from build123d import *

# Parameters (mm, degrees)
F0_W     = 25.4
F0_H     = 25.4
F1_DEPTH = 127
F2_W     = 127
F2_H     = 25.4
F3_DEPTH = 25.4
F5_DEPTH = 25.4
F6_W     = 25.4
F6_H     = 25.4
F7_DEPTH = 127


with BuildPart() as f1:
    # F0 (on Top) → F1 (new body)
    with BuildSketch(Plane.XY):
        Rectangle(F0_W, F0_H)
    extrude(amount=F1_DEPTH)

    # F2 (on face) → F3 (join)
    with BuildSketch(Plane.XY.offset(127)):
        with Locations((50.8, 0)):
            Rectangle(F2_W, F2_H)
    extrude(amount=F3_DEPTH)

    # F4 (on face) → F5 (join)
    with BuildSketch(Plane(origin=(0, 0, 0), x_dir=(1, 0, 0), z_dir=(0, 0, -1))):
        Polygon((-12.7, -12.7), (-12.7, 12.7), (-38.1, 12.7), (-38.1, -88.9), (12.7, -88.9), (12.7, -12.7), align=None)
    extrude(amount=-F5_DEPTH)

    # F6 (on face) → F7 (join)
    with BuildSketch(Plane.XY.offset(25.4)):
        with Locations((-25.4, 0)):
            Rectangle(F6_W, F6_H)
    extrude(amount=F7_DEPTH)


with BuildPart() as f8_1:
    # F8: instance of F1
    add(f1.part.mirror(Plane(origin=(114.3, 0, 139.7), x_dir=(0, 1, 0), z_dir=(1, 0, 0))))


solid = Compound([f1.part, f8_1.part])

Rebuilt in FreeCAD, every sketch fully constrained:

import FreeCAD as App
import Part
import Sketcher
Q = App.Units.Quantity

doc = App.newDocument("Part")
body = doc.addObject("PartDesign::Body", "Body")

sketch1 = doc.addObject("Sketcher::SketchObject", "Sketch")
body.addObject(sketch1)
sketch1.AttachmentSupport = (doc.XY_Plane, [""])
sketch1.MapMode = "FlatFace"
sketch1.addGeometry([
    Part.LineSegment(App.Vector(-13, 13, 0), App.Vector(-13, -13, 0)),
    Part.LineSegment(App.Vector(-13, -13, 0), App.Vector(13, -13, 0)),
    Part.LineSegment(App.Vector(13, -13, 0), App.Vector(13, 13, 0)),
    Part.LineSegment(App.Vector(13, 13, 0), App.Vector(-13, 13, 0)),
], False)
sketch1.addConstraint([
    Sketcher.Constraint("Coincident", 0, 2, 1, 1),
    Sketcher.Constraint("Coincident", 1, 2, 2, 1),
    Sketcher.Constraint("Coincident", 2, 2, 3, 1),
    Sketcher.Constraint("Coincident", 3, 2, 0, 1),
    Sketcher.Constraint("Vertical", 0),
    Sketcher.Constraint("Horizontal", 1),
    Sketcher.Constraint("Vertical", 2),
    Sketcher.Constraint("Horizontal", 3),
    Sketcher.Constraint("Symmetric", 0, 2, 2, 2, -1, 1),
    Sketcher.Constraint("Equal", 3, 0),
    Sketcher.Constraint("DistanceX", 1, 1, 1, 2, Q("1 in")),
])
pad1 = doc.addObject("PartDesign::Pad", "Pad")
body.addObject(pad1)
pad1.Profile = sketch1
pad1.Length = Q("5 in")

sketch2 = doc.addObject("Sketcher::SketchObject", "Sketch001")
body.addObject(sketch2)
sketch2.AttachmentSupport = (doc.XY_Plane, [""])
sketch2.MapMode = "FlatFace"
sketch2.AttachmentOffset = App.Placement(App.Vector(0, 0, 5 * 25.4), App.Rotation())
sketch2.addGeometry([
    Part.LineSegment(App.Vector(-13, 13, 0), App.Vector(-13, -13, 0)),
    Part.LineSegment(App.Vector(-13, -13, 0), App.Vector(114, -13, 0)),
    Part.LineSegment(App.Vector(114, -13, 0), App.Vector(114, 13, 0)),
    Part.LineSegment(App.Vector(114, 13, 0), App.Vector(-13, 13, 0)),
], False)
sketch2.addConstraint([
    Sketcher.Constraint("Coincident", 0, 2, 1, 1),
    Sketcher.Constraint("Coincident", 1, 2, 2, 1),
    Sketcher.Constraint("Coincident", 2, 2, 3, 1),
    Sketcher.Constraint("Coincident", 3, 2, 0, 1),
    Sketcher.Constraint("Vertical", 0),
    Sketcher.Constraint("Horizontal", 1),
    Sketcher.Constraint("Vertical", 2),
    Sketcher.Constraint("Horizontal", 3),
    Sketcher.Constraint("DistanceX", 1, 1, 1, 2, Q("5 in")),
    Sketcher.Constraint("DistanceY", 0, 2, 0, 1, Q("1 in")),
    Sketcher.Constraint("DistanceX", 0, 2, -1, 1, Q("0.5 in")),
    Sketcher.Constraint("DistanceY", 0, 2, -1, 1, Q("0.5 in")),
])
pad2 = doc.addObject("PartDesign::Pad", "Pad001")
body.addObject(pad2)
pad2.Profile = sketch2
pad2.Length = Q("1 in")

sketch3 = doc.addObject("Sketcher::SketchObject", "Sketch002")
body.addObject(sketch3)
sketch3.AttachmentSupport = (doc.XY_Plane, [""])
sketch3.MapMode = "FlatFace"
sketch3.addGeometry([
    Part.LineSegment(App.Vector(-13, 13, 0), App.Vector(-13, -13, 0)),
    Part.LineSegment(App.Vector(-13, -13, 0), App.Vector(-38, -13, 0)),
    Part.LineSegment(App.Vector(-38, -13, 0), App.Vector(-38, 89, 0)),
    Part.LineSegment(App.Vector(-38, 89, 0), App.Vector(13, 89, 0)),
    Part.LineSegment(App.Vector(13, 89, 0), App.Vector(13, 13, 0)),
    Part.LineSegment(App.Vector(13, 13, 0), App.Vector(-13, 13, 0)),
], False)
sketch3.addConstraint([
    Sketcher.Constraint("Coincident", 0, 2, 1, 1),
    Sketcher.Constraint("Coincident", 1, 2, 2, 1),
    Sketcher.Constraint("Coincident", 2, 2, 3, 1),
    Sketcher.Constraint("Coincident", 3, 2, 4, 1),
    Sketcher.Constraint("Coincident", 4, 2, 5, 1),
    Sketcher.Constraint("Coincident", 5, 2, 0, 1),
    Sketcher.Constraint("Vertical", 0),
    Sketcher.Constraint("Horizontal", 1),
    Sketcher.Constraint("Vertical", 2),
    Sketcher.Constraint("Horizontal", 3),
    Sketcher.Constraint("Vertical", 4),
    Sketcher.Constraint("Horizontal", 5),
    Sketcher.Constraint("Symmetric", 0, 2, 4, 2, -1, 1),
    Sketcher.Constraint("Equal", 1, 5),
    Sketcher.Constraint("Equal", 5, 0),
    Sketcher.Constraint("DistanceX", 1, 2, 1, 1, Q("1 in")),
    Sketcher.Constraint("DistanceY", 2, 1, 2, 2, Q("4 in")),
])
pad3 = doc.addObject("PartDesign::Pad", "Pad002")
body.addObject(pad3)
pad3.Profile = sketch3
pad3.Length = Q("1 in")

sketch4 = doc.addObject("Sketcher::SketchObject", "Sketch003")
body.addObject(sketch4)
sketch4.AttachmentSupport = (doc.XY_Plane, [""])
sketch4.MapMode = "FlatFace"
sketch4.AttachmentOffset = App.Placement(App.Vector(0, 0, 1 * 25.4), App.Rotation())
sketch4.addGeometry([
    Part.LineSegment(App.Vector(-38, 13, 0), App.Vector(-38, -13, 0)),
    Part.LineSegment(App.Vector(-38, -13, 0), App.Vector(-13, -13, 0)),
    Part.LineSegment(App.Vector(-13, -13, 0), App.Vector(-13, 13, 0)),
    Part.LineSegment(App.Vector(-13, 13, 0), App.Vector(-38, 13, 0)),
], False)
sketch4.addConstraint([
    Sketcher.Constraint("Coincident", 0, 2, 1, 1),
    Sketcher.Constraint("Coincident", 1, 2, 2, 1),
    Sketcher.Constraint("Coincident", 2, 2, 3, 1),
    Sketcher.Constraint("Coincident", 3, 2, 0, 1),
    Sketcher.Constraint("Vertical", 0),
    Sketcher.Constraint("Horizontal", 1),
    Sketcher.Constraint("Vertical", 2),
    Sketcher.Constraint("Horizontal", 3),
    Sketcher.Constraint("Equal", 3, 0),
    Sketcher.Constraint("DistanceX", 1, 1, 1, 2, Q("1 in")),
    Sketcher.Constraint("DistanceX", 0, 2, -1, 1, Q("1.5 in")),
    Sketcher.Constraint("DistanceY", 0, 2, -1, 1, Q("0.5 in")),
])
pad4 = doc.addObject("PartDesign::Pad", "Pad003")
body.addObject(pad4)
pad4.Profile = sketch4
pad4.Length = Q("5 in")
body2 = doc.addObject("PartDesign::Body", "Body001")
doc.recompute()

mirroring = doc.addObject("Part::Mirroring", "Mirroring")
mirroring.Source = body
mirroring.Base = App.Vector(114.3, 0, 139.7)
mirroring.Normal = App.Vector(1, 0, 0)
body2.BaseFeature = mirroring
doc.recompute()
mirroring.Visibility = False

doc.recompute()
